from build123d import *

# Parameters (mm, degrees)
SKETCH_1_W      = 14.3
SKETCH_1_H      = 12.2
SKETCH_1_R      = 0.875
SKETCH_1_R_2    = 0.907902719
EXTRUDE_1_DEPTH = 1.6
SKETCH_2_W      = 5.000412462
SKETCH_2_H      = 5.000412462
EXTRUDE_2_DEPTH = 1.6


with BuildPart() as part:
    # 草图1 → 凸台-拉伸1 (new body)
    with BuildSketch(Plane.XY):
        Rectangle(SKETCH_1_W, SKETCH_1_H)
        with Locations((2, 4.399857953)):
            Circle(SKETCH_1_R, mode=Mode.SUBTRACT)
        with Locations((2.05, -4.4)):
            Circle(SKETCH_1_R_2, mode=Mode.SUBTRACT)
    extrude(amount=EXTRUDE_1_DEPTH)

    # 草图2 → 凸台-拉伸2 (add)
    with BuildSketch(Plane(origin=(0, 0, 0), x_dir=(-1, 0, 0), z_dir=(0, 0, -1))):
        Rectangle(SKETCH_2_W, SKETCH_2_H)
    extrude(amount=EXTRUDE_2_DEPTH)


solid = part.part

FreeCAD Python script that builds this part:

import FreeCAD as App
import Part
import Sketcher

doc = App.newDocument("Part")
body = doc.addObject("PartDesign::Body", "Body")

sketch1 = body.newObject("Sketcher::SketchObject", "Sketch")
sketch1.AttachmentSupport = (doc.getObject("XY_Plane"), [""])
sketch1.MapMode = "FlatFace"
sketch1.addGeometry([
    Part.LineSegment(App.Vector(-7.2, 6.1, 0), App.Vector(-7.2, -6.1, 0)),
    Part.LineSegment(App.Vector(-7.2, -6.1, 0), App.Vector(7.2, -6.1, 0)),
    Part.LineSegment(App.Vector(7.2, -6.1, 0), App.Vector(7.2, 6.1, 0)),
    Part.LineSegment(App.Vector(7.2, 6.1, 0), App.Vector(-7.2, 6.1, 0)),
    Part.Circle(App.Vector(2, -4.4, 0), App.Vector(0, 0, 1), 0.9),
    Part.Circle(App.Vector(2, 4.4, 0), App.Vector(0, 0, 1), 0.9),
], False)
sketch1.addConstraint([
    Sketcher.Constraint("Coincident", 0, 2, 1, 1),
    Sketcher.Constraint("Coincident", 1, 2, 2, 1),
    Sketcher.Constraint("Coincident", 2, 2, 3, 1),
    Sketcher.Constraint("Coincident", 3, 2, 0, 1),
    Sketcher.Constraint("Vertical", 0),
    Sketcher.Constraint("Horizontal", 1),
    Sketcher.Constraint("Vertical", 2),
    Sketcher.Constraint("Horizontal", 3),
    Sketcher.Constraint("Symmetric", 0, 2, 2, 2, -1, 1),
    Sketcher.Constraint("Diameter", 5, 1.75),
    Sketcher.Constraint("DistanceX", 1, 1, 1, 2, 14.3),
    Sketcher.Constraint("DistanceY", 0, 2, 0, 1, 12.2),
    Sketcher.Constraint("DistanceX", -1, 1, 5, 3, 2.0),
    Sketcher.Constraint("DistanceY", 4, 3, -1, 1, 4.4),
    Sketcher.Constraint("DistanceX", 0, 2, 4, 3, 9.2),
    Sketcher.Constraint("Diameter", 4, 1.815805),
    Sketcher.Constraint("DistanceY", -1, 1, 5, 3, 4.399858),
])
pad1 = body.newObject("PartDesign::Pad", "Pad")
pad1.Profile = sketch1
pad1.Length = 1.6

sketch2 = body.newObject("Sketcher::SketchObject", "Sketch001")
sketch2.AttachmentSupport = (doc.getObject("XY_Plane"), [""])
sketch2.MapMode = "FlatFace"
sketch2.addGeometry([
    Part.LineSegment(App.Vector(3, 3, 0), App.Vector(3, -3, 0)),
    Part.LineSegment(App.Vector(3, -3, 0), App.Vector(-3, -3, 0)),
    Part.LineSegment(App.Vector(-3, -3, 0), App.Vector(-3, 3, 0)),
    Part.LineSegment(App.Vector(-3, 3, 0), App.Vector(3, 3, 0)),
], False)
sketch2.addConstraint([
    Sketcher.Constraint("Coincident", 0, 2, 1, 1),
    Sketcher.Constraint("Coincident", 1, 2, 2, 1),
    Sketcher.Constraint("Coincident", 2, 2, 3, 1),
    Sketcher.Constraint("Coincident", 3, 2, 0, 1),
    Sketcher.Constraint("Vertical", 0),
    Sketcher.Constraint("Horizontal", 1),
    Sketcher.Constraint("Vertical", 2),
    Sketcher.Constraint("Horizontal", 3),
    Sketcher.Constraint("Symmetric", 0, 2, 2, 2, -1, 1),
    Sketcher.Constraint("Equal", 3, 0),
    Sketcher.Constraint("DistanceX", 1, 2, 1, 1, 5.000412),
])
pad2 = body.newObject("PartDesign::Pad", "Pad001")
pad2.Profile = sketch2
pad2.Length = 1.6
pad2.Reversed = True

doc.recompute()
